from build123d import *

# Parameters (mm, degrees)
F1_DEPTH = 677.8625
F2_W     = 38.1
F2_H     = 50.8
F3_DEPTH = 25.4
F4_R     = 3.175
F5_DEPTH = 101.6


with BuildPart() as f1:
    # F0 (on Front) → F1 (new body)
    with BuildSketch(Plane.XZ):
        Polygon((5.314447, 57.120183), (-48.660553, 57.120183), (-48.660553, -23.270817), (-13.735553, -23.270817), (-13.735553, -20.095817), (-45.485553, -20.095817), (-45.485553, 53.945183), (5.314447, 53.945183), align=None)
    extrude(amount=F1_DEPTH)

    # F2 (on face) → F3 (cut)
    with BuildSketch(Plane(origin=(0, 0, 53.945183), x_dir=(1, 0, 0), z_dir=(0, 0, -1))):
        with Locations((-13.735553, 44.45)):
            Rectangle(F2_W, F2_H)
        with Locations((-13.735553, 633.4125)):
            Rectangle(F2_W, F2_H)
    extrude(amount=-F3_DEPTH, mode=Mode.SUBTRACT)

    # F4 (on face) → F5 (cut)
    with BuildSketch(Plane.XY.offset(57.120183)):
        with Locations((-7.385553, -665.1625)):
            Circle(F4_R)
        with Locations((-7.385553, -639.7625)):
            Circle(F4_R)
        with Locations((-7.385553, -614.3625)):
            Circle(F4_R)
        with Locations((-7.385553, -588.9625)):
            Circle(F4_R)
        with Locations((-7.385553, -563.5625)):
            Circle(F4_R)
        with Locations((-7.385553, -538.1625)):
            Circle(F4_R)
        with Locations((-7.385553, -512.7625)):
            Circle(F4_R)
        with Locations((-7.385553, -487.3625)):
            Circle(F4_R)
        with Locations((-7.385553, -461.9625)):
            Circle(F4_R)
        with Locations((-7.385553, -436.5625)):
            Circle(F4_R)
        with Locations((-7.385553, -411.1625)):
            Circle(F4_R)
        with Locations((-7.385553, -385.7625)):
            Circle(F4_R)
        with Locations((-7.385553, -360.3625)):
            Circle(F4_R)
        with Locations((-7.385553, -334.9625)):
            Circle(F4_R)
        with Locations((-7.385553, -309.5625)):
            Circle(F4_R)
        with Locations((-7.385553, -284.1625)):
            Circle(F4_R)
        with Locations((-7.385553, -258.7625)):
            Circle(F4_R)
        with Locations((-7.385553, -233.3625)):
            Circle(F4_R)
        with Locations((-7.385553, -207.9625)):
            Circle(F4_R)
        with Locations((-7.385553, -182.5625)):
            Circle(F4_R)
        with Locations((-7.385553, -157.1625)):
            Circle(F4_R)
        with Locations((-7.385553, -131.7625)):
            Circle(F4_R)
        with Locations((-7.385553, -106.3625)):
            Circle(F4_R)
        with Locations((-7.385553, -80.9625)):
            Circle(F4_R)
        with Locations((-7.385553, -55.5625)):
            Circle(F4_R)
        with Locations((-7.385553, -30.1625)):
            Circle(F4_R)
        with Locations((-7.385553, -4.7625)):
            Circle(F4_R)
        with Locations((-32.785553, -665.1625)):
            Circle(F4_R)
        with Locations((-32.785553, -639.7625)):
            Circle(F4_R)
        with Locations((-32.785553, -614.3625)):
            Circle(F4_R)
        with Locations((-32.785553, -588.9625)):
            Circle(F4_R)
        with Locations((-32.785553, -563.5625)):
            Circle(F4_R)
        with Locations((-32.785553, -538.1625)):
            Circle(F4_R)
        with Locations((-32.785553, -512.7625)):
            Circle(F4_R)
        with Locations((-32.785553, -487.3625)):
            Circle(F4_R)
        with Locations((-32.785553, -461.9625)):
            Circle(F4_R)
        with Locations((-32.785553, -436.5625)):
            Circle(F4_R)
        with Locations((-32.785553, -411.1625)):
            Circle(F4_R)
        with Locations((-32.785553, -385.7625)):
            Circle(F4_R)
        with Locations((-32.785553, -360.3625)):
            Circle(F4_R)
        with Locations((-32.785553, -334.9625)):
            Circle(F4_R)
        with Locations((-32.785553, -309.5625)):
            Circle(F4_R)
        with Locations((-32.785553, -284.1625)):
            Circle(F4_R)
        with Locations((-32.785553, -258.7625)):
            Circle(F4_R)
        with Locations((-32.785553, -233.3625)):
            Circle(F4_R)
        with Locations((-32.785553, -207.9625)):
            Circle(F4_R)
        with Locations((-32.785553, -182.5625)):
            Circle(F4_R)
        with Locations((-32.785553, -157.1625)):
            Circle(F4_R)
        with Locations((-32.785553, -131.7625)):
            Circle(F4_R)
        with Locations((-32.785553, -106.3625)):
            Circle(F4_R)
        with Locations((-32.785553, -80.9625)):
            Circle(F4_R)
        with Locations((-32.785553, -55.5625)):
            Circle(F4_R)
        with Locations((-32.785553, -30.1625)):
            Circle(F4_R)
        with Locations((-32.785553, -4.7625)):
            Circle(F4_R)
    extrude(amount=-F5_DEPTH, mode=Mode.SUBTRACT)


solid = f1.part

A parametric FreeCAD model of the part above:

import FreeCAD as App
import Part
import Sketcher

V = App.Vector
Q = App.Units.Quantity


def add_polygon(sketch, points):
    """Adds a closed chain of lines whose ends are joined by coincident constraints."""
    first, n = sketch.GeometryCount, len(points)
    for a, b in zip(points, points[1:] + points[:1]):
        sketch.addGeometry(Part.LineSegment(App.Vector(*a, 0), App.Vector(*b, 0)), False)
    for i in range(n):
        sketch.addConstraint(Sketcher.Constraint("Coincident", first + i, 2, first + (i + 1) % n, 1))

doc = App.newDocument("Part")
body = doc.addObject("PartDesign::Body", "Body")

# Sketch on XZ plane
sketch1 = body.newObject("Sketcher::SketchObject", "Sketch")
sketch1.AttachmentSupport = (doc.getObject("XZ_Plane"), [""])
sketch1.MapMode = "FlatFace"
add_polygon(sketch1, [(5.3, 57.1), (-48.7, 57.1), (-48.7, -23.3), (-13.7, -23.3), (-13.7, -20.1), (-45.5, -20.1), (-45.5, 53.9), (5.3, 53.9)])  # lines 0-7
sketch1.addConstraint([
    Sketcher.Constraint("Horizontal", 0),
    Sketcher.Constraint("Vertical", 1),
    Sketcher.Constraint("Horizontal", 2),
    Sketcher.Constraint("Vertical", 3),
    Sketcher.Constraint("Horizontal", 4),
    Sketcher.Constraint("Vertical", 5),
    Sketcher.Constraint("Horizontal", 6),
    Sketcher.Constraint("Vertical", 7),
    Sketcher.Constraint("Equal", 3, 7),
    Sketcher.Constraint("DistanceX", 6, 1, 6, 2, Q("2 in")),
    Sketcher.Constraint("DistanceX", 4, 2, 4, 1, Q("1.25 in")),
    Sketcher.Constraint("DistanceX", 0, 2, 0, 1, Q("2.125 in")),
    Sketcher.Constraint("DistanceY", 1, 2, 1, 1, Q("3.165 in")),
    Sketcher.Constraint("DistanceY", 3, 1, 3, 2, Q("0.125 in")),
    Sketcher.Constraint("DistanceX", 0, 2, -1, 1, 48.660553),
    Sketcher.Constraint("DistanceY", -1, 1, 0, 2, 57.120183),
])
pad1 = body.newObject("PartDesign::Pad", "Pad")
pad1.Profile = sketch1
pad1.Length = Q("26.6875 in")

# Sketch on XY plane
sketch2 = body.newObject("Sketcher::SketchObject", "Sketch001")
sketch2.AttachmentSupport = (doc.getObject("XY_Plane"), [""])
sketch2.MapMode = "FlatFace"
sketch2.AttachmentOffset = App.Placement(V(0, 0, 53.945183), App.Rotation())
add_polygon(sketch2, [(-33, -70), (-33, -19), (5, -19), (5, -70)])  # lines 0-3
add_polygon(sketch2, [(-33, -659), (-33, -608), (5, -608), (5, -659)])  # lines 4-7
sketch2.addConstraint([
    Sketcher.Constraint("Vertical", 0),
    Sketcher.Constraint("Horizontal", 1),
    Sketcher.Constraint("Vertical", 2),
    Sketcher.Constraint("Horizontal", 3),
    Sketcher.Constraint("Vertical", 4),
    Sketcher.Constraint("Horizontal", 5),
    Sketcher.Constraint("Vertical", 6),
    Sketcher.Constraint("Horizontal", 7),
    Sketcher.Constraint("Vertical", 3, 2, 4, 2),
    Sketcher.Constraint("Vertical", 2, 2, 5, 2),
    Sketcher.Constraint("Equal", 2, 4),
    Sketcher.Constraint("DistanceY", 0, 1, 0, 2, Q("2 in")),
    Sketcher.Constraint("DistanceX", 1, 1, 1, 2, Q("1.5 in")),
    Sketcher.Constraint("DistanceY", 0, 2, -1, 1, Q("0.75 in")),
    Sketcher.Constraint("DistanceY", 4, 2, -1, 1, Q("23.9375 in")),
    Sketcher.Constraint("DistanceX", 0, 2, -1, 1, 32.785553),
])
pocket1 = body.newObject("PartDesign::Pocket", "Pocket")
pocket1.Profile = sketch2
pocket1.Length = Q("1 in")
pocket1.Reversed = True

# Sketch on XY plane
sketch3 = body.newObject("Sketcher::SketchObject", "Sketch002")
sketch3.AttachmentSupport = (doc.getObject("XY_Plane"), [""])
sketch3.MapMode = "FlatFace"
sketch3.AttachmentOffset = App.Placement(V(0, 0, 57.120183), App.Rotation())
sketch3.addGeometry([
    Part.Circle(V(-7.4, -665.2, 0), V(0, 0, 1), 3.2),  # 0
    Part.Circle(V(-7.4, -639.8, 0), V(0, 0, 1), 3.2),  # 1
    Part.Circle(V(-7.4, -614.4, 0), V(0, 0, 1), 3.2),  # 2
    Part.Circle(V(-7.4, -589, 0), V(0, 0, 1), 3.2),  # 3
    Part.Circle(V(-7.4, -563.6, 0), V(0, 0, 1), 3.2),  # 4
    Part.Circle(V(-7.4, -538.2, 0), V(0, 0, 1), 3.2),  # 5
    Part.Circle(V(-7.4, -512.8, 0), V(0, 0, 1), 3.2),  # 6
    Part.Circle(V(-7.4, -487.4, 0), V(0, 0, 1), 3.2),  # 7
    Part.Circle(V(-7.4, -462, 0), V(0, 0, 1), 3.2),  # 8
    Part.Circle(V(-7.4, -436.6, 0), V(0, 0, 1), 3.2),  # 9
    Part.Circle(V(-7.4, -411.2, 0), V(0, 0, 1), 3.2),  # 10
    Part.Circle(V(-7.4, -385.8, 0), V(0, 0, 1), 3.2),  # 11
    Part.Circle(V(-7.4, -360.4, 0), V(0, 0, 1), 3.2),  # 12
    Part.Circle(V(-7.4, -335, 0), V(0, 0, 1), 3.2),  # 13
    Part.Circle(V(-7.4, -309.6, 0), V(0, 0, 1), 3.2),  # 14
    Part.Circle(V(-7.4, -284.2, 0), V(0, 0, 1), 3.2),  # 15
    Part.Circle(V(-7.4, -258.8, 0), V(0, 0, 1), 3.2),  # 16
    Part.Circle(V(-7.4, -233.4, 0), V(0, 0, 1), 3.2),  # 17
    Part.Circle(V(-7.4, -208, 0), V(0, 0, 1), 3.2),  # 18
    Part.Circle(V(-7.4, -182.6, 0), V(0, 0, 1), 3.2),  # 19
    Part.Circle(V(-7.4, -157.2, 0), V(0, 0, 1), 3.2),  # 20
    Part.Circle(V(-7.4, -131.8, 0), V(0, 0, 1), 3.2),  # 21
    Part.Circle(V(-7.4, -106.4, 0), V(0, 0, 1), 3.2),  # 22
    Part.Circle(V(-7.4, -81, 0), V(0, 0, 1), 3.2),  # 23
    Part.Circle(V(-7.4, -55.6, 0), V(0, 0, 1), 3.2),  # 24
    Part.Circle(V(-7.4, -30.2, 0), V(0, 0, 1), 3.2),  # 25
    Part.Circle(V(-7.4, -4.8, 0), V(0, 0, 1), 3.2),  # 26
    Part.Circle(V(-32.8, -665.2, 0), V(0, 0, 1), 3.2),  # 27
    Part.Circle(V(-32.8, -639.8, 0), V(0, 0, 1), 3.2),  # 28
    Part.Circle(V(-32.8, -614.4, 0), V(0, 0, 1), 3.2),  # 29
    Part.Circle(V(-32.8, -589, 0), V(0, 0, 1), 3.2),  # 30
    Part.Circle(V(-32.8, -563.6, 0), V(0, 0, 1), 3.2),  # 31
    Part.Circle(V(-32.8, -538.2, 0), V(0, 0, 1), 3.2),  # 32
    Part.Circle(V(-32.8, -512.8, 0), V(0, 0, 1), 3.2),  # 33
    Part.Circle(V(-32.8, -487.4, 0), V(0, 0, 1), 3.2),  # 34
    Part.Circle(V(-32.8, -462, 0), V(0, 0, 1), 3.2),  # 35
    Part.Circle(V(-32.8, -436.6, 0), V(0, 0, 1), 3.2),  # 36
    Part.Circle(V(-32.8, -411.2, 0), V(0, 0, 1), 3.2),  # 37
    Part.Circle(V(-32.8, -385.8, 0), V(0, 0, 1), 3.2),  # 38
    Part.Circle(V(-32.8, -360.4, 0), V(0, 0, 1), 3.2),  # 39
    Part.Circle(V(-32.8, -335, 0), V(0, 0, 1), 3.2),  # 40
    Part.Circle(V(-32.8, -309.6, 0), V(0, 0, 1), 3.2),  # 41
    Part.Circle(V(-32.8, -284.2, 0), V(0, 0, 1), 3.2),  # 42
    Part.Circle(V(-32.8, -258.8, 0), V(0, 0, 1), 3.2),  # 43
    Part.Circle(V(-32.8, -233.4, 0), V(0, 0, 1), 3.2),  # 44
    Part.Circle(V(-32.8, -208, 0), V(0, 0, 1), 3.2),  # 45
    Part.Circle(V(-32.8, -182.6, 0), V(0, 0, 1), 3.2),  # 46
    Part.Circle(V(-32.8, -157.2, 0), V(0, 0, 1), 3.2),  # 47
    Part.Circle(V(-32.8, -131.8, 0), V(0, 0, 1), 3.2),  # 48
    Part.Circle(V(-32.8, -106.4, 0), V(0, 0, 1), 3.2),  # 49
    Part.Circle(V(-32.8, -81, 0), V(0, 0, 1), 3.2),  # 50
    Part.Circle(V(-32.8, -55.6, 0), V(0, 0, 1), 3.2),  # 51
    Part.Circle(V(-32.8, -30.2, 0), V(0, 0, 1), 3.2),  # 52
    Part.Circle(V(-32.8, -4.8, 0), V(0, 0, 1), 3.2),  # 53
], False)
sketch3.addConstraint([
    Sketcher.Constraint("Equal", 0, 1),
    Sketcher.Constraint("Equal", 1, 2),
    Sketcher.Constraint("Equal", 2, 3),
    Sketcher.Constraint("Equal", 3, 4),
    Sketcher.Constraint("Equal", 4, 5),
    Sketcher.Constraint("Equal", 5, 6),
    Sketcher.Constraint("Equal", 6, 7),
    Sketcher.Constraint("Equal", 7, 8),
    Sketcher.Constraint("Equal", 8, 9),
    Sketcher.Constraint("Equal", 9, 10),
    Sketcher.Constraint("Equal", 10, 11),
    Sketcher.Constraint("Equal", 11, 12),
    Sketcher.Constraint("Equal", 12, 13),
    Sketcher.Constraint("Equal", 13, 14),
    Sketcher.Constraint("Equal", 14, 15),
    Sketcher.Constraint("Equal", 15, 16),
    Sketcher.Constraint("Equal", 16, 17),
    Sketcher.Constraint("Equal", 17, 18),
    Sketcher.Constraint("Equal", 18, 19),
    Sketcher.Constraint("Equal", 19, 20),
    Sketcher.Constraint("Equal", 20, 21),
    Sketcher.Constraint("Equal", 21, 22),
    Sketcher.Constraint("Equal", 22, 23),
    Sketcher.Constraint("Equal", 23, 24),
    Sketcher.Constraint("Equal", 24, 25),
    Sketcher.Constraint("Equal", 25, 26),
    Sketcher.Constraint("Equal", 26, 27),
    Sketcher.Constraint("Equal", 27, 28),
    Sketcher.Constraint("Equal", 28, 29),
    Sketcher.Constraint("Equal", 29, 30),
    Sketcher.Constraint("Equal", 30, 31),
    Sketcher.Constraint("Equal", 31, 32),
    Sketcher.Constraint("Equal", 32, 33),
    Sketcher.Constraint("Equal", 33, 34),
    Sketcher.Constraint("Equal", 34, 35),
    Sketcher.Constraint("Equal", 35, 36),
    Sketcher.Constraint("Equal", 36, 37),
    Sketcher.Constraint("Equal", 37, 38),
    Sketcher.Constraint("Equal", 38, 39),
    Sketcher.Constraint("Equal", 39, 40),
    Sketcher.Constraint("Equal", 40, 41),
    Sketcher.Constraint("Equal", 41, 42),
    Sketcher.Constraint("Equal", 42, 43),
    Sketcher.Constraint("Equal", 43, 44),
    Sketcher.Constraint("Equal", 44, 45),
    Sketcher.Constraint("Equal", 45, 46),
    Sketcher.Constraint("Equal", 46, 47),
    Sketcher.Constraint("Equal", 47, 48),
    Sketcher.Constraint("Equal", 48, 49),
    Sketcher.Constraint("Equal", 49, 50),
    Sketcher.Constraint("Equal", 50, 51),
    Sketcher.Constraint("Equal", 51, 52),
    Sketcher.Constraint("Equal", 52, 53),
    Sketcher.Constraint("Horizontal", 0, 3, 27, 3),
    Sketcher.Constraint("Horizontal", 1, 3, 28, 3),
    Sketcher.Constraint("Horizontal", 2, 3, 29, 3),
    Sketcher.Constraint("Horizontal", 3, 3, 30, 3),
    Sketcher.Constraint("Horizontal", 4, 3, 31, 3),
    Sketcher.Constraint("Horizontal", 5, 3, 32, 3),
    Sketcher.Constraint("Horizontal", 6, 3, 33, 3),
    Sketcher.Constraint("Horizontal", 7, 3, 34, 3),
    Sketcher.Constraint("Horizontal", 8, 3, 35, 3),
    Sketcher.Constraint("Horizontal", 9, 3, 36, 3),
    Sketcher.Constraint("Horizontal", 10, 3, 37, 3),
    Sketcher.Constraint("Horizontal", 11, 3, 38, 3),
    Sketcher.Constraint("Horizontal", 12, 3, 39, 3),
    Sketcher.Constraint("Horizontal", 13, 3, 40, 3),
    Sketcher.Constraint("Horizontal", 14, 3, 41, 3),
    Sketcher.Constraint("Horizontal", 15, 3, 42, 3),
    Sketcher.Constraint("Horizontal", 16, 3, 43, 3),
    Sketcher.Constraint("Horizontal", 17, 3, 44, 3),
    Sketcher.Constraint("Horizontal", 18, 3, 45, 3),
    Sketcher.Constraint("Horizontal", 19, 3, 46, 3),
    Sketcher.Constraint("Horizontal", 20, 3, 47, 3),
    Sketcher.Constraint("Horizontal", 21, 3, 48, 3),
    Sketcher.Constraint("Horizontal", 22, 3, 49, 3),
    Sketcher.Constraint("Horizontal", 23, 3, 50, 3),
    Sketcher.Constraint("Horizontal", 24, 3, 51, 3),
    Sketcher.Constraint("Horizontal", 25, 3, 52, 3),
    Sketcher.Constraint("Horizontal", 26, 3, 53, 3),
    Sketcher.Constraint("Vertical", 0, 3, 1, 3),
    Sketcher.Constraint("Vertical", 1, 3, 2, 3),
    Sketcher.Constraint("Vertical", 2, 3, 3, 3),
    Sketcher.Constraint("Vertical", 3, 3, 4, 3),
    Sketcher.Constraint("Vertical", 4, 3, 5, 3),
    Sketcher.Constraint("Vertical", 5, 3, 6, 3),
    Sketcher.Constraint("Vertical", 6, 3, 7, 3),
    Sketcher.Constraint("Vertical", 7, 3, 8, 3),
    Sketcher.Constraint("Vertical", 8, 3, 9, 3),
    Sketcher.Constraint("Vertical", 9, 3, 10, 3),
    Sketcher.Constraint("Vertical", 10, 3, 11, 3),
    Sketcher.Constraint("Vertical", 11, 3, 12, 3),
    Sketcher.Constraint("Vertical", 12, 3, 13, 3),
    Sketcher.Constraint("Vertical", 13, 3, 14, 3),
    Sketcher.Constraint("Vertical", 14, 3, 15, 3),
    Sketcher.Constraint("Vertical", 15, 3, 16, 3),
    Sketcher.Constraint("Vertical", 16, 3, 17, 3),
    Sketcher.Constraint("Vertical", 17, 3, 18, 3),
    Sketcher.Constraint("Vertical", 18, 3, 19, 3),
    Sketcher.Constraint("Vertical", 19, 3, 20, 3),
    Sketcher.Constraint("Vertical", 20, 3, 21, 3),
    Sketcher.Constraint("Vertical", 21, 3, 22, 3),
    Sketcher.Constraint("Vertical", 22, 3, 23, 3),
    Sketcher.Constraint("Vertical", 23, 3, 24, 3),
    Sketcher.Constraint("Vertical", 24, 3, 25, 3),
    Sketcher.Constraint("Vertical", 25, 3, 26, 3),
    Sketcher.Constraint("Vertical", 27, 3, 28, 3),
    Sketcher.Constraint("Vertical", 28, 3, 29, 3),
    Sketcher.Constraint("Vertical", 29, 3, 30, 3),
    Sketcher.Constraint("Vertical", 30, 3, 31, 3),
    Sketcher.Constraint("Vertical", 31, 3, 32, 3),
    Sketcher.Constraint("Vertical", 32, 3, 33, 3),
    Sketcher.Constraint("Vertical", 33, 3, 34, 3),
    Sketcher.Constraint("Vertical", 34, 3, 35, 3),
    Sketcher.Constraint("Vertical", 35, 3, 36, 3),
    Sketcher.Constraint("Vertical", 36, 3, 37, 3),
    Sketcher.Constraint("Vertical", 37, 3, 38, 3),
    Sketcher.Constraint("Vertical", 38, 3, 39, 3),
    Sketcher.Constraint("Vertical", 39, 3, 40, 3),
    Sketcher.Constraint("Vertical", 40, 3, 41, 3),
    Sketcher.Constraint("Vertical", 41, 3, 42, 3),
    Sketcher.Constraint("Vertical", 42, 3, 43, 3),
    Sketcher.Constraint("Vertical", 43, 3, 44, 3),
    Sketcher.Constraint("Vertical", 44, 3, 45, 3),
    Sketcher.Constraint("Vertical", 45, 3, 46, 3),
    Sketcher.Constraint("Vertical", 46, 3, 47, 3),
    Sketcher.Constraint("Vertical", 47, 3, 48, 3),
    Sketcher.Constraint("Vertical", 48, 3, 49, 3),
    Sketcher.Constraint("Vertical", 49, 3, 50, 3),
    Sketcher.Constraint("Vertical", 50, 3, 51, 3),
    Sketcher.Constraint("Vertical", 51, 3, 52, 3),
    Sketcher.Constraint("Vertical", 52, 3, 53, 3),
    Sketcher.Constraint("Diameter", 0, Q("0.25 in")),
    Sketcher.Constraint("DistanceY", 0, 3, 1, 3, Q("1 in")),
    Sketcher.Constraint("DistanceY", 1, 3, 2, 3, Q("1 in")),
    Sketcher.Constraint("DistanceY", 2, 3, 3, 3, Q("1 in")),
    Sketcher.Constraint("DistanceY", 3, 3, 4, 3, Q("1 in")),
    Sketcher.Constraint("DistanceY", 4, 3, 5, 3, Q("1 in")),
    Sketcher.Constraint("DistanceY", 5, 3, 6, 3, Q("1 in")),
    Sketcher.Constraint("DistanceY", 6, 3, 7, 3, Q("1 in")),
    Sketcher.Constraint("DistanceY", 7, 3, 8, 3, Q("1 in")),
    Sketcher.Constraint("DistanceY", 8, 3, 9, 3, Q("1 in")),
    Sketcher.Constraint("DistanceY", 9, 3, 10, 3, Q("1 in")),
    Sketcher.Constraint("DistanceY", 10, 3, 11, 3, Q("1 in")),
    Sketcher.Constraint("DistanceY", 11, 3, 12, 3, Q("1 in")),
    Sketcher.Constraint("DistanceY", 12, 3, 13, 3, Q("1 in")),
    Sketcher.Constraint("DistanceY", 13, 3, 14, 3, Q("1 in")),
    Sketcher.Constraint("DistanceY", 14, 3, 15, 3, Q("1 in")),
    Sketcher.Constraint("DistanceY", 15, 3, 16, 3, Q("1 in")),
    Sketcher.Constraint("DistanceY", 16, 3, 17, 3, Q("1 in")),
    Sketcher.Constraint("DistanceY", 17, 3, 18, 3, Q("1 in")),
    Sketcher.Constraint("DistanceY", 18, 3, 19, 3, Q("1 in")),
    Sketcher.Constraint("DistanceY", 19, 3, 20, 3, Q("1 in")),
    Sketcher.Constraint("DistanceY", 20, 3, 21, 3, Q("1 in")),
    Sketcher.Constraint("DistanceY", 21, 3, 22, 3, Q("1 in")),
    Sketcher.Constraint("DistanceY", 22, 3, 23, 3, Q("1 in")),
    Sketcher.Constraint("DistanceY", 23, 3, 24, 3, Q("1 in")),
    Sketcher.Constraint("DistanceY", 24, 3, 25, 3, Q("1 in")),
    Sketcher.Constraint("DistanceY", 25, 3, 26, 3, Q("1 in")),
    Sketcher.Constraint("DistanceX", 27, 3, 0, 3, Q("1 in")),
    Sketcher.Constraint("DistanceY", 0, 3, -1, 1, Q("26.1875 in")),
    Sketcher.Constraint("DistanceX", 0, 3, -1, 1, 7.385553),
])
pocket2 = body.newObject("PartDesign::Pocket", "Pocket001")
pocket2.Profile = sketch3
pocket2.Length = Q("4 in")

doc.recompute()
